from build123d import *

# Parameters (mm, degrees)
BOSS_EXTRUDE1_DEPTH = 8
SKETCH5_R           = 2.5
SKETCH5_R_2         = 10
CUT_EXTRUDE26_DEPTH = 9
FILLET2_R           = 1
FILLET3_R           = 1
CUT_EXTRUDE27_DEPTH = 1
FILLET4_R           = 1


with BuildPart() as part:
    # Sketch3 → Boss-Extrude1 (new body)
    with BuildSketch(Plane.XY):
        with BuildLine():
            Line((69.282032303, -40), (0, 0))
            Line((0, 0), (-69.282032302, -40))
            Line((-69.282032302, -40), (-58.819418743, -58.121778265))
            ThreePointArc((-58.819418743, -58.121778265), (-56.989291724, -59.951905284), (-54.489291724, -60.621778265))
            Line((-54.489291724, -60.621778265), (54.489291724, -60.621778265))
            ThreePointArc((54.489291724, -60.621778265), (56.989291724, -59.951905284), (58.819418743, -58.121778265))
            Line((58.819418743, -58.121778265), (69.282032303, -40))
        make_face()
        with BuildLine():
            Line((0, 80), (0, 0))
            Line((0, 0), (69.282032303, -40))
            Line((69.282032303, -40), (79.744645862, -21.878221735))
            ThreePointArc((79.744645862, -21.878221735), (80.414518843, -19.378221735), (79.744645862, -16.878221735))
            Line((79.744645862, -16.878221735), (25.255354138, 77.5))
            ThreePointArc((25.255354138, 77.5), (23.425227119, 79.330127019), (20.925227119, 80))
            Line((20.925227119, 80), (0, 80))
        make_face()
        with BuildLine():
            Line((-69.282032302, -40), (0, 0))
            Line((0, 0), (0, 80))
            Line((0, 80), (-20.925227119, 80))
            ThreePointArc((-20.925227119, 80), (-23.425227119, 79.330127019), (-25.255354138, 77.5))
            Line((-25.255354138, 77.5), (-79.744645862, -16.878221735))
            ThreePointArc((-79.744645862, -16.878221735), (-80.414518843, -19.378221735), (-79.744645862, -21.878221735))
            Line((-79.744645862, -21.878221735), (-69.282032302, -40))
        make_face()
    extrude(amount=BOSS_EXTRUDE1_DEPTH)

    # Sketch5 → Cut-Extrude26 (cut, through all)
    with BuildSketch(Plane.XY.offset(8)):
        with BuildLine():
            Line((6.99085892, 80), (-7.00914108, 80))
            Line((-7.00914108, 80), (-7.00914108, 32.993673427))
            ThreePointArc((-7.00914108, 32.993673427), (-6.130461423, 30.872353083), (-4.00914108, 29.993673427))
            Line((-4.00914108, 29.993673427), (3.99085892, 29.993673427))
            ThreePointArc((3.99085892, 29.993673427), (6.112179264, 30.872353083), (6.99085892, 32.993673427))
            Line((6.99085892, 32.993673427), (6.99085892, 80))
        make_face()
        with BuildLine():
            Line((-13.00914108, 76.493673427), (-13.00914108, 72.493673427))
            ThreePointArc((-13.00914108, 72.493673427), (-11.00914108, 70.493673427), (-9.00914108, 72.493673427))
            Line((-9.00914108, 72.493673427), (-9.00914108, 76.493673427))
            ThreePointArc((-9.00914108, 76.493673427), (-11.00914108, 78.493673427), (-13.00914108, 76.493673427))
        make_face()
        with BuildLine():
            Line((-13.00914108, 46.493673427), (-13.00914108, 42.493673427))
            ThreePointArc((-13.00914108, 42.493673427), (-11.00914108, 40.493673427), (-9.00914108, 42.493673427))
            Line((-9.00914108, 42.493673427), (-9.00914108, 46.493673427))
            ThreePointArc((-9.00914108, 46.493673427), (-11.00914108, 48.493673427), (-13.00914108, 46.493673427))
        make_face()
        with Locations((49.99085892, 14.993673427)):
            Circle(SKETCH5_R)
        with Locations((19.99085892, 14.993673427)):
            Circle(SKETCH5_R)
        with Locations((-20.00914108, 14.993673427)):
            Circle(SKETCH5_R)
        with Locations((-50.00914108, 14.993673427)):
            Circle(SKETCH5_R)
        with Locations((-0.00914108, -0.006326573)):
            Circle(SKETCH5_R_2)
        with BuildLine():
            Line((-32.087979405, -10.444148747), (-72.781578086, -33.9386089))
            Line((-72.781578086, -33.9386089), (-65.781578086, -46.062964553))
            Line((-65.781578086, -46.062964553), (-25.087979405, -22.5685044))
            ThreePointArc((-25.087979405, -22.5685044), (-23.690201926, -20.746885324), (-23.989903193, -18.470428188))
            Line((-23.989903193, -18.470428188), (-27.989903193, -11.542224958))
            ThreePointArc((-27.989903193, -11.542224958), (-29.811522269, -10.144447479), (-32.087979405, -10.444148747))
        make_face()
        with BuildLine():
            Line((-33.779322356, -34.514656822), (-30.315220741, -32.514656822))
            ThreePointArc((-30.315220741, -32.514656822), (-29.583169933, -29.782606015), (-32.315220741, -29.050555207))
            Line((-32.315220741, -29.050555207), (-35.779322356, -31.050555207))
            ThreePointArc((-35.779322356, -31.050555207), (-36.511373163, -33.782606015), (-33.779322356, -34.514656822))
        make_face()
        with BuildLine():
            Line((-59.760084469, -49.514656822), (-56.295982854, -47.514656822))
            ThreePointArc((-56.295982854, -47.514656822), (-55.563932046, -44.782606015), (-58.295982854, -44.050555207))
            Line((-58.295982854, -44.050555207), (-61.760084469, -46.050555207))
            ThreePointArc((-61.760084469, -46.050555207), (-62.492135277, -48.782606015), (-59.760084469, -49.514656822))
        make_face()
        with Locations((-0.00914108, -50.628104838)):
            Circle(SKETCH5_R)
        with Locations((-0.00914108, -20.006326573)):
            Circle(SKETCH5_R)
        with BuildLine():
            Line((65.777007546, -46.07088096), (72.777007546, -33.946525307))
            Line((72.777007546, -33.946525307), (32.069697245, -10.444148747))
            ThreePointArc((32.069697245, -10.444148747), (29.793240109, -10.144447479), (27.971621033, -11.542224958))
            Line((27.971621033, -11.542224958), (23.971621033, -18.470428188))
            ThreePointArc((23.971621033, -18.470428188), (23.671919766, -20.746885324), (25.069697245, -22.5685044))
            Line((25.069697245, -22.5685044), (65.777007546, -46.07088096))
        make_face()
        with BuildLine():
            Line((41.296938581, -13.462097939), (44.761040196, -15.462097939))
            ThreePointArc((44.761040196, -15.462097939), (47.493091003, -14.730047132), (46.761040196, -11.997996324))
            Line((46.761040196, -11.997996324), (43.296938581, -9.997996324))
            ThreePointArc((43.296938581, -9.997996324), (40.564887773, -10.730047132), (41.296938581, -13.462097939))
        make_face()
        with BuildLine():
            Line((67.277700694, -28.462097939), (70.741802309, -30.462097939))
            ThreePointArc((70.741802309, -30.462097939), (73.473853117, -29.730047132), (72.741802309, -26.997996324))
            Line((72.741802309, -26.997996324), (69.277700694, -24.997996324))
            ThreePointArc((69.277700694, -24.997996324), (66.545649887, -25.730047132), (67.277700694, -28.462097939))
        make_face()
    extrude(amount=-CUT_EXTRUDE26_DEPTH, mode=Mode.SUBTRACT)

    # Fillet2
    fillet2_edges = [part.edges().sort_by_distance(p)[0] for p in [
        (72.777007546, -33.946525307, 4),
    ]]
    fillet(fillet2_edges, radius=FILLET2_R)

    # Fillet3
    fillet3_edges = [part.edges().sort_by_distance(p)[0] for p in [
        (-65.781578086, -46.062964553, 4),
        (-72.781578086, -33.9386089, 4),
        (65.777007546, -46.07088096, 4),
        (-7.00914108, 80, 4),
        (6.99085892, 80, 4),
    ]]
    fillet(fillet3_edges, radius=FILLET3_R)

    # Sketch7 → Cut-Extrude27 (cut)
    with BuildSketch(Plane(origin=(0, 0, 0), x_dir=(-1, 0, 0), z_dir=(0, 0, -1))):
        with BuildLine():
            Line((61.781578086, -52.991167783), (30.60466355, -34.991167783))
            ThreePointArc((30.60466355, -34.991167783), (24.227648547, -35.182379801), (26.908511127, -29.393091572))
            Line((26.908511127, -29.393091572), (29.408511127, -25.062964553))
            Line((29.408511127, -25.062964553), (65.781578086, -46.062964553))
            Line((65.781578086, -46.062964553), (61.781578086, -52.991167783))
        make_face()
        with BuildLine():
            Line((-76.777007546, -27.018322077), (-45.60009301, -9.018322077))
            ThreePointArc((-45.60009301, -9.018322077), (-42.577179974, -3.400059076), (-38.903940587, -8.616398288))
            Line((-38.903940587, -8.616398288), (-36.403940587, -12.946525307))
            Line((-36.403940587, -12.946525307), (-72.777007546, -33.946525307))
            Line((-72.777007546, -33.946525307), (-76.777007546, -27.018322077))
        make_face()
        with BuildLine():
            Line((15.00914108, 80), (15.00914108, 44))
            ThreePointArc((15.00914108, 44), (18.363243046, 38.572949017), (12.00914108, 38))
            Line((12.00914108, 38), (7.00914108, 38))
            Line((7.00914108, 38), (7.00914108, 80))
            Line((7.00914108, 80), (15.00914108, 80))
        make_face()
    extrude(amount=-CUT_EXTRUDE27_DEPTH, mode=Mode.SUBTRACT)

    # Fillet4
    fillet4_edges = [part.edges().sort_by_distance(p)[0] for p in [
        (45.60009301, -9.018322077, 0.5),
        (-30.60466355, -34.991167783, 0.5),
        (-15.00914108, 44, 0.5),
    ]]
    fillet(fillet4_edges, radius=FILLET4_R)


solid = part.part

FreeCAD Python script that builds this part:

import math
import FreeCAD as App
import Part
import Sketcher
from FreeCAD import Vector
Q = App.Units.Quantity


def edges_at(feature, points):
    """Names of the edges that pass closest to the given points."""
    edges = feature.Shape.Edges
    near = lambda p: min(range(len(edges)), key=lambda i: edges[i].distToShape(Part.Vertex(*p))[0])
    return sorted({f"Edge{near(p) + 1}" for p in points})

doc = App.newDocument("Part")
body = doc.addObject("PartDesign::Body", "Body")

# Sketch on XY plane
sketch1 = doc.addObject("Sketcher::SketchObject", "Sketch")
body.addObject(sketch1)
sketch1.AttachmentSupport = (doc.XY_Plane, [""])
sketch1.MapMode = "FlatFace"
sketch1.addGeometry([
    Part.LineSegment(Vector(-69, -40, 0), Vector(-59, -58, 0)),  # 0
    Part.ArcOfCircle(Part.Circle(Vector(-54, -56, 0), Vector(0, 0, 1), 5), math.radians(-150), math.radians(-90)),  # 1
    Part.LineSegment(Vector(-54, -61, 0), Vector(54, -61, 0)),  # 2
    Part.ArcOfCircle(Part.Circle(Vector(54, -56, 0), Vector(0, 0, 1), 5), math.radians(-90), math.radians(-30)),  # 3
    Part.LineSegment(Vector(59, -58, 0), Vector(69, -40, 0)),  # 4
    Part.LineSegment(Vector(69, -40, 0), Vector(80, -22, 0)),  # 5
    Part.ArcOfCircle(Part.Circle(Vector(75, -19, 0), Vector(0, 0, 1), 5), math.radians(-30), math.radians(30)),  # 6
    Part.LineSegment(Vector(80, -17, 0), Vector(25, 78, 0)),  # 7
    Part.ArcOfCircle(Part.Circle(Vector(21, 75, 0), Vector(0, 0, 1), 5), math.radians(30), math.radians(90)),  # 8
    Part.LineSegment(Vector(21, 80, 0), Vector(-21, 80, 0)),  # 9
    Part.ArcOfCircle(Part.Circle(Vector(-21, 75, 0), Vector(0, 0, 1), 5), math.radians(90), math.radians(150)),  # 10
    Part.LineSegment(Vector(-25, 78, 0), Vector(-80, -17, 0)),  # 11
    Part.ArcOfCircle(Part.Circle(Vector(-75, -19, 0), Vector(0, 0, 1), 5), math.radians(150), math.radians(210)),  # 12
    Part.LineSegment(Vector(-80, -22, 0), Vector(-69, -40, 0)),  # 13
], False)
sketch1.addConstraint([
    Sketcher.Constraint("Tangent", 0, 2, 1, 1),
    Sketcher.Constraint("Tangent", 1, 2, 2, 1),
    Sketcher.Constraint("Tangent", 2, 2, 3, 1),
    Sketcher.Constraint("Tangent", 3, 2, 4, 1),
    Sketcher.Constraint("Coincident", 4, 2, 5, 1),
    Sketcher.Constraint("Tangent", 5, 2, 6, 1),
    Sketcher.Constraint("Tangent", 6, 2, 7, 1),
    Sketcher.Constraint("Tangent", 7, 2, 8, 1),
    Sketcher.Constraint("Tangent", 8, 2, 9, 1),
    Sketcher.Constraint("Tangent", 9, 2, 10, 1),
    Sketcher.Constraint("Tangent", 10, 2, 11, 1),
    Sketcher.Constraint("Tangent", 11, 2, 12, 1),
    Sketcher.Constraint("Tangent", 12, 2, 13, 1),
    Sketcher.Constraint("Coincident", 13, 2, 0, 1),
    Sketcher.Constraint("Horizontal", 2),
    Sketcher.Constraint("Horizontal", 9),
    Sketcher.Constraint("Equal", 1, 3),
    Sketcher.Constraint("Equal", 3, 6),
    Sketcher.Constraint("Equal", 6, 8),
    Sketcher.Constraint("Equal", 8, 10),
    Sketcher.Constraint("Equal", 10, 12),
    Sketcher.Constraint("Symmetric", 6, 3, 12, 3, -2),
    Sketcher.Constraint("Symmetric", 0, 2, 3, 2, -2),
    Sketcher.Constraint("Parallel", 4, 5),
    Sketcher.Constraint("Parallel", 0, 7),
    Sketcher.Constraint("Parallel", 5, 11),
    Sketcher.Constraint("Horizontal", 4, 2, 13, 2),
    Sketcher.Constraint("Equal", 4, 5),
    Sketcher.Constraint("Radius", 1, Q("5 mm")),
    Sketcher.Constraint("Angle", 0, Q("-60 deg")),
    Sketcher.Constraint("DistanceY", -1, 1, 8, 3, Q("75 mm")),
    Sketcher.Constraint("DistanceY", 4, 2, -1, 1, Q("40 mm")),
    Sketcher.Constraint("DistanceX", 12, 3, 0, 2, Q("16.5951 mm")),
    Sketcher.Constraint("DistanceX", 2, 1, 2, 2, Q("108.978583 mm")),
])
pad1 = doc.addObject("PartDesign::Pad", "Pad")
body.addObject(pad1)
pad1.Profile = sketch1
pad1.Length = 8

# Sketch on XY plane
sketch2 = doc.addObject("Sketcher::SketchObject", "Sketch001")
body.addObject(sketch2)
sketch2.AttachmentSupport = (doc.XY_Plane, [""])
sketch2.MapMode = "FlatFace"
sketch2.AttachmentOffset = App.Placement(Vector(0, 0, 8), App.Rotation())
sketch2.addGeometry([
    Part.LineSegment(Vector(7, 80, 0), Vector(-7, 80, 0)),  # 0
    Part.LineSegment(Vector(-7, 80, 0), Vector(-7, 33, 0)),  # 1
    Part.ArcOfCircle(Part.Circle(Vector(-4, 33, 0), Vector(0, 0, 1), 3), math.radians(180), math.radians(270)),  # 2
    Part.LineSegment(Vector(-4, 30, 0), Vector(4, 30, 0)),  # 3
    Part.ArcOfCircle(Part.Circle(Vector(4, 33, 0), Vector(0, 0, 1), 3), math.radians(-90), math.radians(0)),  # 4
    Part.LineSegment(Vector(7, 33, 0), Vector(7, 80, 0)),  # 5
    Part.LineSegment(Vector(-13, 76.5, 0), Vector(-13, 72.5, 0)),  # 6
    Part.ArcOfCircle(Part.Circle(Vector(-11, 72.5, 0), Vector(0, 0, 1), 2), math.radians(180), math.radians(360)),  # 7
    Part.LineSegment(Vector(-9, 72.5, 0), Vector(-9, 76.5, 0)),  # 8
    Part.ArcOfCircle(Part.Circle(Vector(-11, 76.5, 0), Vector(0, 0, 1), 2), math.radians(0), math.radians(180)),  # 9
    Part.LineSegment(Vector(-13, 46.5, 0), Vector(-13, 42.5, 0)),  # 10
    Part.ArcOfCircle(Part.Circle(Vector(-11, 42.5, 0), Vector(0, 0, 1), 2), math.radians(180), math.radians(360)),  # 11
    Part.LineSegment(Vector(-9, 42.5, 0), Vector(-9, 46.5, 0)),  # 12
    Part.ArcOfCircle(Part.Circle(Vector(-11, 46.5, 0), Vector(0, 0, 1), 2), math.radians(0), math.radians(180)),  # 13
    Part.Circle(Vector(50, 15, 0), Vector(0, 0, 1), 2.5),  # 14
    Part.Circle(Vector(20, 15, 0), Vector(0, 0, 1), 2.5),  # 15
    Part.Circle(Vector(-20, 15, 0), Vector(0, 0, 1), 2.5),  # 16
    Part.Circle(Vector(-50, 15, 0), Vector(0, 0, 1), 2.5),  # 17
    Part.Circle(Vector(0, 0, 0), Vector(0, 0, 1), 10),  # 18
    Part.LineSegment(Vector(-32.1, -10.4, 0), Vector(-72.8, -33.9, 0)),  # 19
    Part.LineSegment(Vector(-72.8, -33.9, 0), Vector(-65.8, -46.1, 0)),  # 20
    Part.LineSegment(Vector(-65.8, -46.1, 0), Vector(-25.1, -22.6, 0)),  # 21
    Part.ArcOfCircle(Part.Circle(Vector(-26.6, -20, 0), Vector(0, 0, 1), 3), math.radians(-60), math.radians(30)),  # 22
    Part.LineSegment(Vector(-24, -18.5, 0), Vector(-28, -11.5, 0)),  # 23
    Part.ArcOfCircle(Part.Circle(Vector(-30.6, -13, 0), Vector(0, 0, 1), 3), math.radians(30), math.radians(120)),  # 24
    Part.LineSegment(Vector(-33.8, -34.5, 0), Vector(-30.3, -32.5, 0)),  # 25
    Part.ArcOfCircle(Part.Circle(Vector(-31.3, -30.8, 0), Vector(0, 0, 1), 2), math.radians(-60), math.radians(120)),  # 26
    Part.LineSegment(Vector(-32.3, -29.1, 0), Vector(-35.8, -31.1, 0)),  # 27
    Part.ArcOfCircle(Part.Circle(Vector(-34.8, -32.8, 0), Vector(0, 0, 1), 2), math.radians(120), math.radians(300)),  # 28
    Part.LineSegment(Vector(-59.8, -49.5, 0), Vector(-56.3, -47.5, 0)),  # 29
    Part.ArcOfCircle(Part.Circle(Vector(-57.3, -45.8, 0), Vector(0, 0, 1), 2), math.radians(-60), math.radians(120)),  # 30
    Part.LineSegment(Vector(-58.3, -44.1, 0), Vector(-61.8, -46.1, 0)),  # 31
    Part.ArcOfCircle(Part.Circle(Vector(-60.8, -47.8, 0), Vector(0, 0, 1), 2), math.radians(120), math.radians(300)),  # 32
    Part.Circle(Vector(0, -50.6, 0), Vector(0, 0, 1), 2.5),  # 33
    Part.Circle(Vector(0, -20, 0), Vector(0, 0, 1), 2.5),  # 34
    Part.LineSegment(Vector(65.8, -46.1, 0), Vector(72.8, -33.9, 0)),  # 35
    Part.LineSegment(Vector(72.8, -33.9, 0), Vector(32.1, -10.4, 0)),  # 36
    Part.ArcOfCircle(Part.Circle(Vector(30.6, -13, 0), Vector(0, 0, 1), 3), math.radians(60), math.radians(150)),  # 37
    Part.LineSegment(Vector(28, -11.5, 0), Vector(24, -18.5, 0)),  # 38
    Part.ArcOfCircle(Part.Circle(Vector(26.6, -20, 0), Vector(0, 0, 1), 3), math.radians(150), math.radians(240)),  # 39
    Part.LineSegment(Vector(25.1, -22.6, 0), Vector(65.8, -46.1, 0)),  # 40
    Part.LineSegment(Vector(41.3, -13.5, 0), Vector(44.8, -15.5, 0)),  # 41
    Part.ArcOfCircle(Part.Circle(Vector(45.8, -13.7, 0), Vector(0, 0, 1), 2), math.radians(-120), math.radians(60)),  # 42
    Part.LineSegment(Vector(46.8, -12, 0), Vector(43.3, -10, 0)),  # 43
    Part.ArcOfCircle(Part.Circle(Vector(42.3, -11.7, 0), Vector(0, 0, 1), 2), math.radians(60), math.radians(240)),  # 44
    Part.LineSegment(Vector(67.3, -28.5, 0), Vector(70.7, -30.5, 0)),  # 45
    Part.ArcOfCircle(Part.Circle(Vector(71.7, -28.7, 0), Vector(0, 0, 1), 2), math.radians(-120), math.radians(60)),  # 46
    Part.LineSegment(Vector(72.7, -27, 0), Vector(69.3, -25, 0)),  # 47
    Part.ArcOfCircle(Part.Circle(Vector(68.3, -26.7, 0), Vector(0, 0, 1), 2), math.radians(60), math.radians(240)),  # 48
], False)
sketch2.addConstraint([
    Sketcher.Constraint("Coincident", 0, 2, 1, 1),
    Sketcher.Constraint("Tangent", 1, 2, 2, 1),
    Sketcher.Constraint("Tangent", 2, 2, 3, 1),
    Sketcher.Constraint("Tangent", 3, 2, 4, 1),
    Sketcher.Constraint("Tangent", 4, 2, 5, 1),
    Sketcher.Constraint("Coincident", 5, 2, 0, 1),
    Sketcher.Constraint("Tangent", 6, 2, 7, 1),
    Sketcher.Constraint("Tangent", 7, 2, 8, 1),
    Sketcher.Constraint("Tangent", 8, 2, 9, 1),
    Sketcher.Constraint("Tangent", 9, 2, 6, 1),
    Sketcher.Constraint("Tangent", 10, 2, 11, 1),
    Sketcher.Constraint("Tangent", 11, 2, 12, 1),
    Sketcher.Constraint("Tangent", 12, 2, 13, 1),
    Sketcher.Constraint("Tangent", 13, 2, 10, 1),
    Sketcher.Constraint("Coincident", 19, 2, 20, 1),
    Sketcher.Constraint("Coincident", 20, 2, 21, 1),
    Sketcher.Constraint("Tangent", 21, 2, 22, 1),
    Sketcher.Constraint("Tangent", 22, 2, 23, 1),
    Sketcher.Constraint("Tangent", 23, 2, 24, 1),
    Sketcher.Constraint("Tangent", 24, 2, 19, 1),
    Sketcher.Constraint("Tangent", 25, 2, 26, 1),
    Sketcher.Constraint("Tangent", 26, 2, 27, 1),
    Sketcher.Constraint("Tangent", 27, 2, 28, 1),
    Sketcher.Constraint("Tangent", 28, 2, 25, 1),
    Sketcher.Constraint("Tangent", 29, 2, 30, 1),
    Sketcher.Constraint("Tangent", 30, 2, 31, 1),
    Sketcher.Constraint("Tangent", 31, 2, 32, 1),
    Sketcher.Constraint("Tangent", 32, 2, 29, 1),
    Sketcher.Constraint("Coincident", 35, 2, 36, 1),
    Sketcher.Constraint("Tangent", 36, 2, 37, 1),
    Sketcher.Constraint("Tangent", 37, 2, 38, 1),
    Sketcher.Constraint("Tangent", 38, 2, 39, 1),
    Sketcher.Constraint("Tangent", 39, 2, 40, 1),
    Sketcher.Constraint("Coincident", 40, 2, 35, 1),
    Sketcher.Constraint("Tangent", 41, 2, 42, 1),
    Sketcher.Constraint("Tangent", 42, 2, 43, 1),
    Sketcher.Constraint("Tangent", 43, 2, 44, 1),
    Sketcher.Constraint("Tangent", 44, 2, 41, 1),
    Sketcher.Constraint("Tangent", 45, 2, 46, 1),
    Sketcher.Constraint("Tangent", 46, 2, 47, 1),
    Sketcher.Constraint("Tangent", 47, 2, 48, 1),
    Sketcher.Constraint("Tangent", 48, 2, 45, 1),
    Sketcher.Constraint("Horizontal", 0),
    Sketcher.Constraint("Vertical", 1),
    Sketcher.Constraint("Horizontal", 3),
    Sketcher.Constraint("Vertical", 5),
    Sketcher.Constraint("Vertical", 6),
    Sketcher.Constraint("Vertical", 8),
    Sketcher.Constraint("Vertical", 10),
    Sketcher.Constraint("Vertical", 12),
    Sketcher.Constraint("Equal", 2, 4),
    Sketcher.Constraint("Equal", 9, 11),
    Sketcher.Constraint("Equal", 14, 15),
    Sketcher.Constraint("Equal", 15, 16),
    Sketcher.Constraint("Equal", 16, 17),
    Sketcher.Constraint("Equal", 4, 22),
    Sketcher.Constraint("Equal", 22, 24),
    Sketcher.Constraint("Equal", 13, 26),
    Sketcher.Constraint("Equal", 26, 28),
    Sketcher.Constraint("Equal", 28, 30),
    Sketcher.Constraint("Equal", 30, 32),
    Sketcher.Constraint("Equal", 17, 33),
    Sketcher.Constraint("Equal", 33, 34),
    Sketcher.Constraint("Equal", 24, 37),
    Sketcher.Constraint("Equal", 37, 39),
    Sketcher.Constraint("Equal", 32, 42),
    Sketcher.Constraint("Equal", 42, 44),
    Sketcher.Constraint("Equal", 44, 46),
    Sketcher.Constraint("Equal", 46, 48),
    Sketcher.Constraint("Perpendicular", 19, 20),
    Sketcher.Constraint("Perpendicular", 20, 21),
    Sketcher.Constraint("Perpendicular", 21, 23),
    Sketcher.Constraint("Perpendicular", 23, 25),
    Sketcher.Constraint("Parallel", 27, 29),
    Sketcher.Constraint("Perpendicular", 35, 36),
    Sketcher.Constraint("Perpendicular", 36, 38),
    Sketcher.Constraint("Perpendicular", 38, 40),
    Sketcher.Constraint("Parallel", 40, 41),
    Sketcher.Constraint("Parallel", 43, 45),
    Sketcher.Constraint("Horizontal", 14, 3, 15, 3),
    Sketcher.Constraint("Horizontal", 15, 3, 16, 3),
    Sketcher.Constraint("Horizontal", 16, 3, 17, 3),
    Sketcher.Constraint("Horizontal", 24, 3, 37, 3),
    Sketcher.Constraint("Horizontal", 22, 3, 39, 3),
    Sketcher.Constraint("Horizontal", 24, 2, 36, 2),
    Sketcher.Constraint("Vertical", 9, 3, 11, 3),
    Sketcher.Constraint("Vertical", 18, 3, 33, 3),
    Sketcher.Constraint("Vertical", 33, 3, 34, 3),
    Sketcher.Constraint("Equal", 8, 10),
    Sketcher.Constraint("Equal", 27, 29),
    Sketcher.Constraint("Equal", 31, 41),
    Sketcher.Constraint("Equal", 43, 45),
    Sketcher.Constraint("Diameter", 14, Q("5 mm")),
    Sketcher.Constraint("Diameter", 18, Q("20 mm")),
    Sketcher.Constraint("Radius", 2, Q("3 mm")),
    Sketcher.Constraint("Radius", 7, Q("2 mm")),
    Sketcher.Constraint("DistanceX", 0, 2, 0, 1, Q("14 mm")),
    Sketcher.Constraint("DistanceY", 6, 2, 6, 1, Q("4 mm")),
    Sketcher.Constraint("Angle", 19, Q("-150 deg")),
    Sketcher.Constraint("Distance", 20, Q("14 mm")),
    Sketcher.Constraint("Distance", 25, Q("4 mm")),
    Sketcher.Constraint("DistanceY", -1, 1, 0, 2, Q("80 mm")),
    Sketcher.Constraint("DistanceX", -1, 1, 48, 3, Q("68.277701 mm")),
    Sketcher.Constraint("Distance", 19, Q("46.98892 mm")),
    Sketcher.Constraint("DistanceY", 1, 2, 1, 1, Q("47.006327 mm")),
    Sketcher.Constraint("DistanceX", 2, 3, -1, 1, Q("4.009141 mm")),
    Sketcher.Constraint("DistanceX", 7, 3, -1, 1, Q("11.009141 mm")),
    Sketcher.Constraint("DistanceX", -1, 1, 14, 3, Q("49.990859 mm")),
    Sketcher.Constraint("DistanceX", -1, 1, 15, 3, Q("19.990859 mm")),
    Sketcher.Constraint("DistanceX", 16, 3, -1, 1, Q("20.009141 mm")),
    Sketcher.Constraint("DistanceX", 17, 3, -1, 1, Q("50.009141 mm")),
    Sketcher.Constraint("DistanceX", 18, 3, -1, 1, Q("0.009141 mm")),
    Sketcher.Constraint("DistanceX", 22, 3, -1, 1, Q("26.587979 mm")),
    Sketcher.Constraint("DistanceY", 22, 3, -1, 1, Q("19.970428 mm")),
    Sketcher.Constraint("DistanceX", 26, 3, -1, 1, Q("31.315221 mm")),
    Sketcher.Constraint("DistanceX", -1, 1, 42, 3, Q("45.76104 mm")),
    Sketcher.Constraint("DistanceX", -1, 1, 37, 2, Q("27.971621 mm")),
    Sketcher.Constraint("DistanceY", 40, 2, -1, 1, Q("46.070881 mm")),
    Sketcher.Constraint("DistanceY", -1, 1, 7, 3, Q("72.493673 mm")),
    Sketcher.Constraint("DistanceY", -1, 1, 11, 3, Q("42.493673 mm")),
    Sketcher.Constraint("DistanceY", -1, 1, 14, 3, Q("14.993673 mm")),
    Sketcher.Constraint("DistanceY", 18, 3, -1, 1, Q("0.006327 mm")),
    Sketcher.Constraint("DistanceY", 26, 3, -1, 1, Q("30.782606 mm")),
    Sketcher.Constraint("DistanceX", 30, 3, -1, 1, Q("57.295983 mm")),
    Sketcher.Constraint("DistanceY", 30, 3, -1, 1, Q("45.782606 mm")),
    Sketcher.Constraint("DistanceY", 33, 3, -1, 1, Q("50.628105 mm")),
    Sketcher.Constraint("DistanceY", 34, 3, -1, 1, Q("20.006327 mm")),
    Sketcher.Constraint("DistanceY", 42, 3, -1, 1, Q("13.730047 mm")),
    Sketcher.Constraint("DistanceY", 46, 3, -1, 1, Q("28.730047 mm")),
])
pocket1 = doc.addObject("PartDesign::Pocket", "Pocket")
body.addObject(pocket1)
pocket1.Profile = sketch2
pocket1.Type = "ThroughAll"
doc.recompute()

fillet = doc.addObject("PartDesign::Fillet", "Fillet")
body.addObject(fillet)
fillet.Base = (pocket1, edges_at(pocket1, [(72.777, -33.947, 4)]))
fillet.Radius = 1
doc.recompute()

fillet2 = doc.addObject("PartDesign::Fillet", "Fillet001")
body.addObject(fillet2)
fillet2.Base = (fillet, edges_at(fillet, [
    (-65.782, -46.063, 4),
    (-72.782, -33.939, 4),
    (65.777, -46.071, 4),
    (-7.009, 80, 4),
    (6.991, 80, 4),
]))
fillet2.Radius = 1

# Sketch on XY plane
sketch3 = doc.addObject("Sketcher::SketchObject", "Sketch002")
body.addObject(sketch3)
sketch3.AttachmentSupport = (doc.XY_Plane, [""])
sketch3.MapMode = "FlatFace"
sketch3.addGeometry([
    Part.LineSegment(Vector(-30.6, -35, 0), Vector(-61.8, -53, 0)),  # 0
    Part.LineSegment(Vector(-61.8, -53, 0), Vector(-65.8, -46.1, 0)),  # 1
    Part.LineSegment(Vector(-65.8, -46.1, 0), Vector(-29.4, -25.1, 0)),  # 2
    Part.LineSegment(Vector(-29.4, -25.1, 0), Vector(-26.9, -29.4, 0)),  # 3
    Part.ArcOfCircle(Part.Circle(Vector(-27.4, -33.1, 0), Vector(0, 0, 1), 3.8), math.radians(-150), math.radians(83)),  # 4
    Part.LineSegment(Vector(45.6, -9, 0), Vector(76.8, -27, 0)),  # 5
    Part.LineSegment(Vector(76.8, -27, 0), Vector(72.8, -33.9, 0)),  # 6
    Part.LineSegment(Vector(72.8, -33.9, 0), Vector(36.4, -12.9, 0)),  # 7
    Part.LineSegment(Vector(36.4, -12.9, 0), Vector(38.9, -8.6, 0)),  # 8
    Part.ArcOfCircle(Part.Circle(Vector(42.4, -7.1, 0), Vector(0, 0, 1), 3.8), math.radians(-30), math.radians(203)),  # 9
    Part.LineSegment(Vector(-15, 44, 0), Vector(-15, 80, 0)),  # 10
    Part.LineSegment(Vector(-15, 80, 0), Vector(-7, 80, 0)),  # 11
    Part.LineSegment(Vector(-7, 80, 0), Vector(-7, 38, 0)),  # 12
    Part.LineSegment(Vector(-7, 38, 0), Vector(-12, 38, 0)),  # 13
    Part.ArcOfCircle(Part.Circle(Vector(-15, 40.2, 0), Vector(0, 0, 1), 3.8), math.radians(90), math.radians(323)),  # 14
], False)
sketch3.addConstraint([
    Sketcher.Constraint("Coincident", 0, 2, 1, 1),
    Sketcher.Constraint("Coincident", 1, 2, 2, 1),
    Sketcher.Constraint("Coincident", 2, 2, 3, 1),
    Sketcher.Constraint("Coincident", 3, 2, 4, 2),
    Sketcher.Constraint("Coincident", 4, 1, 0, 1),
    Sketcher.Constraint("Coincident", 5, 2, 6, 1),
    Sketcher.Constraint("Coincident", 6, 2, 7, 1),
    Sketcher.Constraint("Coincident", 7, 2, 8, 1),
    Sketcher.Constraint("Coincident", 8, 2, 9, 2),
    Sketcher.Constraint("Coincident", 9, 1, 5, 1),
    Sketcher.Constraint("Coincident", 10, 2, 11, 1),
    Sketcher.Constraint("Coincident", 11, 2, 12, 1),
    Sketcher.Constraint("Coincident", 12, 2, 13, 1),
    Sketcher.Constraint("Coincident", 13, 2, 14, 2),
    Sketcher.Constraint("Coincident", 14, 1, 10, 1),
    Sketcher.Constraint("Vertical", 10),
    Sketcher.Constraint("Horizontal", 11),
    Sketcher.Constraint("Vertical", 12),
    Sketcher.Constraint("Horizontal", 13),
    Sketcher.Constraint("Equal", 4, 9),
    Sketcher.Constraint("Equal", 9, 14),
    Sketcher.Constraint("Perpendicular", 0, 1),
    Sketcher.Constraint("Perpendicular", 1, 2),
    Sketcher.Constraint("Perpendicular", 2, 3),
    Sketcher.Constraint("Perpendicular", 5, 6),
    Sketcher.Constraint("Perpendicular", 6, 7),
    Sketcher.Constraint("Perpendicular", 7, 8),
    Sketcher.Constraint("Vertical", 14, 3, 10, 2),
    Sketcher.Constraint("Equal", 0, 5),
    Sketcher.Constraint("Equal", 1, 6),
    Sketcher.Constraint("Equal", 2, 7),
    Sketcher.Constraint("Equal", 3, 8),
    Sketcher.Constraint("DistanceX", 11, 1, 11, 2, Q("8 mm")),
    Sketcher.Constraint("DistanceX", 13, 2, 13, 1, Q("5 mm")),
    Sketcher.Constraint("DistanceY", 10, 1, 10, 2, Q("36 mm")),
    Sketcher.Constraint("DistanceY", 12, 2, 12, 1, Q("42 mm")),
    Sketcher.Constraint("Angle", 0, Q("-150 deg")),
    Sketcher.Constraint("Angle", 5, Q("-30 deg")),
    Sketcher.Constraint("Distance", 0, Q("36 mm")),
    Sketcher.Constraint("Distance", 1, Q("8 mm")),
    Sketcher.Constraint("Distance", 2, Q("42 mm")),
    Sketcher.Constraint("Distance", 3, Q("5 mm")),
    Sketcher.Constraint("DistanceY", -1, 1, 10, 2, Q("80 mm")),
    Sketcher.Constraint("DistanceY", 8, 2, -1, 1, Q("8.616398 mm")),
    Sketcher.Constraint("DistanceX", 4, 3, -1, 1, Q("27.357068 mm")),
    Sketcher.Constraint("DistanceX", 14, 3, -1, 1, Q("15.009141 mm")),
    Sketcher.Constraint("DistanceY", 3, 2, -1, 1, Q("29.393092 mm")),
    Sketcher.Constraint("DistanceX", -1, 1, 7, 2, Q("36.403941 mm")),
])
pocket2 = doc.addObject("PartDesign::Pocket", "Pocket001")
body.addObject(pocket2)
pocket2.Profile = sketch3
pocket2.Length = 1
pocket2.Reversed = True
doc.recompute()

fillet3 = doc.addObject("PartDesign::Fillet", "Fillet002")
body.addObject(fillet3)
fillet3.Base = (pocket2, edges_at(pocket2, [(45.6, -9.018, 0.5), (-30.605, -34.991, 0.5), (-15.009, 44, 0.5)]))
fillet3.Radius = 1

doc.recompute()
